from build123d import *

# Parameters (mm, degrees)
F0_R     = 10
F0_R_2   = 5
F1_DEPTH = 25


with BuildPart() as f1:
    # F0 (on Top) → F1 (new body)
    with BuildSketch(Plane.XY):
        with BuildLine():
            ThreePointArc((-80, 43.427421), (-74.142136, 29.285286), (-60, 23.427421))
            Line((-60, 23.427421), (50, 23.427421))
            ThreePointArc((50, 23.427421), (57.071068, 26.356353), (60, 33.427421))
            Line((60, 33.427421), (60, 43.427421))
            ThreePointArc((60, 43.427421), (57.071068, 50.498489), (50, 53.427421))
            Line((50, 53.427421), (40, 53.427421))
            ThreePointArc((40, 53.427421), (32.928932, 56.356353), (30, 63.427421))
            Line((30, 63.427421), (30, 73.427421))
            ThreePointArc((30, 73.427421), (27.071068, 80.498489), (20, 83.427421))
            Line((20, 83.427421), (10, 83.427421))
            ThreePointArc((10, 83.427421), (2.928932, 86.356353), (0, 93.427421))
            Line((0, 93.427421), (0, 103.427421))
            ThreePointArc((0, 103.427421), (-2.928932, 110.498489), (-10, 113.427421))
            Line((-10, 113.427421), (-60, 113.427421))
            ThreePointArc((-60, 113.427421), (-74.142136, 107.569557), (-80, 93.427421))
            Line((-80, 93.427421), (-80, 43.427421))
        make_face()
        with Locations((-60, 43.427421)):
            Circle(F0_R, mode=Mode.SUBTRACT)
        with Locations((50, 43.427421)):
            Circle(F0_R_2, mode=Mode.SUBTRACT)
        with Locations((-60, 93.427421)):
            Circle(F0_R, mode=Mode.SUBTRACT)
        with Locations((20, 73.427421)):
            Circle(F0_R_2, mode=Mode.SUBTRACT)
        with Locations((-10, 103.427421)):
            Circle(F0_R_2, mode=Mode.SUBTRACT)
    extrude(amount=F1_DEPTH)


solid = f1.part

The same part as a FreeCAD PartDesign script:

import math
import FreeCAD as App
import Part
import Sketcher
from FreeCAD import Vector
Q = App.Units.Quantity

doc = App.newDocument("Part")
body = doc.addObject("PartDesign::Body", "Body")

sketch1 = body.newObject("Sketcher::SketchObject", "Sketch")
sketch1.AttachmentSupport = (doc.getObject("XY_Plane"), [""])
sketch1.MapMode = "FlatFace"
sketch1.addGeometry(Part.ArcOfCircle(Part.Circle(Vector(-60, 43, 0), Vector(0, 0, 1), 20), math.radians(-180), math.radians(-90)), False)
sketch1.addGeometry(Part.LineSegment(Vector(-60, 23, 0), Vector(50, 23, 0)), False)
sketch1.addGeometry(Part.ArcOfCircle(Part.Circle(Vector(50, 33, 0), Vector(0, 0, 1), 10), math.radians(-90), math.radians(0)), False)
sketch1.addGeometry(Part.LineSegment(Vector(60, 33, 0), Vector(60, 43, 0)), False)
sketch1.addGeometry(Part.ArcOfCircle(Part.Circle(Vector(50, 43, 0), Vector(0, 0, 1), 10), math.radians(0), math.radians(90)), False)
sketch1.addGeometry(Part.LineSegment(Vector(50, 53, 0), Vector(40, 53, 0)), False)
sketch1.addGeometry(Part.ArcOfCircle(Part.Circle(Vector(40, 63, 0), Vector(0, 0, 1), 10), math.radians(180), math.radians(270)), False)
sketch1.addGeometry(Part.LineSegment(Vector(30, 63, 0), Vector(30, 73, 0)), False)
sketch1.addGeometry(Part.ArcOfCircle(Part.Circle(Vector(20, 73, 0), Vector(0, 0, 1), 10), math.radians(0), math.radians(90)), False)
sketch1.addGeometry(Part.LineSegment(Vector(20, 83, 0), Vector(10, 83, 0)), False)
sketch1.addGeometry(Part.ArcOfCircle(Part.Circle(Vector(10, 93, 0), Vector(0, 0, 1), 10), math.radians(180), math.radians(270)), False)
sketch1.addGeometry(Part.LineSegment(Vector(0, 93, 0), Vector(0, 103, 0)), False)
sketch1.addGeometry(Part.ArcOfCircle(Part.Circle(Vector(-10, 103, 0), Vector(0, 0, 1), 10), math.radians(0), math.radians(90)), False)
sketch1.addGeometry(Part.LineSegment(Vector(-10, 113, 0), Vector(-60, 113, 0)), False)
sketch1.addGeometry(Part.ArcOfCircle(Part.Circle(Vector(-60, 93, 0), Vector(0, 0, 1), 20), math.radians(90), math.radians(180)), False)
sketch1.addGeometry(Part.LineSegment(Vector(-80, 93, 0), Vector(-80, 43, 0)), False)
sketch1.addGeometry(Part.Circle(Vector(-60, 43, 0), Vector(0, 0, 1), 10), False)
sketch1.addGeometry(Part.Circle(Vector(50, 43, 0), Vector(0, 0, 1), 5), False)
sketch1.addGeometry(Part.Circle(Vector(-60, 93, 0), Vector(0, 0, 1), 10), False)
sketch1.addGeometry(Part.Circle(Vector(-10, 103, 0), Vector(0, 0, 1), 5), False)
sketch1.addGeometry(Part.Circle(Vector(20, 73, 0), Vector(0, 0, 1), 5), False)
sketch1.addConstraint(Sketcher.Constraint("Tangent", 0, 2, 1, 1))
sketch1.addConstraint(Sketcher.Constraint("Tangent", 1, 2, 2, 1))
sketch1.addConstraint(Sketcher.Constraint("Tangent", 2, 2, 3, 1))
sketch1.addConstraint(Sketcher.Constraint("Tangent", 3, 2, 4, 1))
sketch1.addConstraint(Sketcher.Constraint("Tangent", 4, 2, 5, 1))
sketch1.addConstraint(Sketcher.Constraint("Tangent", 5, 2, 6, 2))
sketch1.addConstraint(Sketcher.Constraint("Tangent", 6, 1, 7, 1))
sketch1.addConstraint(Sketcher.Constraint("Tangent", 7, 2, 8, 1))
sketch1.addConstraint(Sketcher.Constraint("Tangent", 8, 2, 9, 1))
sketch1.addConstraint(Sketcher.Constraint("Tangent", 9, 2, 10, 2))
sketch1.addConstraint(Sketcher.Constraint("Tangent", 10, 1, 11, 1))
sketch1.addConstraint(Sketcher.Constraint("Tangent", 11, 2, 12, 1))
sketch1.addConstraint(Sketcher.Constraint("Tangent", 12, 2, 13, 1))
sketch1.addConstraint(Sketcher.Constraint("Tangent", 13, 2, 14, 1))
sketch1.addConstraint(Sketcher.Constraint("Tangent", 14, 2, 15, 1))
sketch1.addConstraint(Sketcher.Constraint("Tangent", 15, 2, 0, 1))
sketch1.addConstraint(Sketcher.Constraint("Horizontal", 1))
sketch1.addConstraint(Sketcher.Constraint("Vertical", 3))
sketch1.addConstraint(Sketcher.Constraint("Horizontal", 5))
sketch1.addConstraint(Sketcher.Constraint("Vertical", 7))
sketch1.addConstraint(Sketcher.Constraint("Horizontal", 9))
sketch1.addConstraint(Sketcher.Constraint("Vertical", 11))
sketch1.addConstraint(Sketcher.Constraint("Horizontal", 13))
sketch1.addConstraint(Sketcher.Constraint("Vertical", 15))
sketch1.addConstraint(Sketcher.Constraint("Coincident", 16, 3, 0, 3))
sketch1.addConstraint(Sketcher.Constraint("Coincident", 17, 3, 4, 3))
sketch1.addConstraint(Sketcher.Constraint("Coincident", 18, 3, 14, 3))
sketch1.addConstraint(Sketcher.Constraint("Coincident", 19, 3, 12, 3))
sketch1.addConstraint(Sketcher.Constraint("Coincident", 20, 3, 8, 3))
sketch1.addConstraint(Sketcher.Constraint("Equal", 2, 4))
sketch1.addConstraint(Sketcher.Constraint("Equal", 4, 6))
sketch1.addConstraint(Sketcher.Constraint("Equal", 6, 8))
sketch1.addConstraint(Sketcher.Constraint("Equal", 8, 10))
sketch1.addConstraint(Sketcher.Constraint("Equal", 10, 12))
sketch1.addConstraint(Sketcher.Constraint("Equal", 0, 14))
sketch1.addConstraint(Sketcher.Constraint("Equal", 12, 16))
sketch1.addConstraint(Sketcher.Constraint("Equal", 16, 18))
sketch1.addConstraint(Sketcher.Constraint("Equal", 17, 19))
sketch1.addConstraint(Sketcher.Constraint("Equal", 19, 20))
sketch1.addConstraint(Sketcher.Constraint("PointOnObject", 10, 1, -2))
sketch1.addConstraint(Sketcher.Constraint("Horizontal", 0, 3, 4, 3))
sketch1.addConstraint(Sketcher.Constraint("Horizontal", 10, 3, 14, 3))
sketch1.addConstraint(Sketcher.Constraint("Equal", 5, 9))
sketch1.addConstraint(Sketcher.Constraint("Equal", 9, 3))
sketch1.addConstraint(Sketcher.Constraint("Equal", 3, 7))
sketch1.addConstraint(Sketcher.Constraint("Equal", 13, 15))
sketch1.addConstraint(Sketcher.Constraint("Diameter", 16, Q("20 mm")))
sketch1.addConstraint(Sketcher.Constraint("Diameter", 17, Q("10 mm")))
sketch1.addConstraint(Sketcher.Constraint("Radius", 0, Q("20 mm")))
sketch1.addConstraint(Sketcher.Constraint("DistanceY", -1, 1, 0, 3, Q("43.427421 mm")))
pad1 = body.newObject("PartDesign::Pad", "Pad")
pad1.Profile = sketch1
pad1.Length = 25

doc.recompute()
